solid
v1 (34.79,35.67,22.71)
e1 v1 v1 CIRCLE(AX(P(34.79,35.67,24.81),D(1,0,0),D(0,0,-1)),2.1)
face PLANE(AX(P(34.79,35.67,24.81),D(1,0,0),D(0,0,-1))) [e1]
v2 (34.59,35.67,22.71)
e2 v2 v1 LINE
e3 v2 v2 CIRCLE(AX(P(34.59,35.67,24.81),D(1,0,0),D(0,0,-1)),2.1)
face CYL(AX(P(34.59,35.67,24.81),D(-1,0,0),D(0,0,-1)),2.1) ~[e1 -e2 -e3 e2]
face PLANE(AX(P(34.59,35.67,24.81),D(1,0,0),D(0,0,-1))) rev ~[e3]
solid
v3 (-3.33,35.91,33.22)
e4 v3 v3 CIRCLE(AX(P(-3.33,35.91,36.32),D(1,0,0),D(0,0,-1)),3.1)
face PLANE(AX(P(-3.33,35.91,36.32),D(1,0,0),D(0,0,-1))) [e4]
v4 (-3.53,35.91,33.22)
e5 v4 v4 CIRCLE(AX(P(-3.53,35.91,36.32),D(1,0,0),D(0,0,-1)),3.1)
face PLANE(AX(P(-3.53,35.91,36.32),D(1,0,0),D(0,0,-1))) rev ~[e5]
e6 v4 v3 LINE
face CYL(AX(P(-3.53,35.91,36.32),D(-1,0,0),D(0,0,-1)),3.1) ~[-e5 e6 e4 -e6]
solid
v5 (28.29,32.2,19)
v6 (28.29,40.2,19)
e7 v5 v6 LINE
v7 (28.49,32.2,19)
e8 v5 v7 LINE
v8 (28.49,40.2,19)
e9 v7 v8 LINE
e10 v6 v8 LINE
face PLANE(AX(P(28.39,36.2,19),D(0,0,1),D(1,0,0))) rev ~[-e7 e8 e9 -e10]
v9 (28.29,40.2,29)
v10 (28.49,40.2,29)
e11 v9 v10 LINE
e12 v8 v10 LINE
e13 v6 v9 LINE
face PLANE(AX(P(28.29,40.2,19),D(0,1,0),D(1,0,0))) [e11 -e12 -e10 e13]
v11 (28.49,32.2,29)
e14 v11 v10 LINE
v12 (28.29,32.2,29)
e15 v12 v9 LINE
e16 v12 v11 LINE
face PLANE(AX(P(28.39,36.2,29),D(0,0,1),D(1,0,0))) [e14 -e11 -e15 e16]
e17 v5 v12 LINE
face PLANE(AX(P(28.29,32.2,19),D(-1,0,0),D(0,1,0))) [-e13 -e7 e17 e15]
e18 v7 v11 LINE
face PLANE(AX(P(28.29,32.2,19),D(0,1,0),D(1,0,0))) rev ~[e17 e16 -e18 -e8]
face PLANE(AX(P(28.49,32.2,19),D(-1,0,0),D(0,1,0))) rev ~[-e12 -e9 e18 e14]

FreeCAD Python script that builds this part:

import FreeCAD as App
import Part
import Sketcher
from FreeCAD import Vector
Q = App.Units.Quantity

doc = App.newDocument("Part")
body = doc.addObject("PartDesign::Body", "Body")

sketch1 = body.newObject("Sketcher::SketchObject", "Sketch")
sketch1.AttachmentSupport = (doc.getObject("YZ_Plane"), [""])
sketch1.MapMode = "FlatFace"
sketch1.AttachmentOffset = App.Placement(Vector(0, 0, -3.53), App.Rotation())
sketch1.addGeometry(Part.Circle(Vector(35.91, 36.32, 0), Vector(0, 0, 1), 3.1), False)
sketch1.addConstraint([
    Sketcher.Constraint("Diameter", 0, Q("6.2 mm")),
    Sketcher.Constraint("DistanceX", -1, 1, 0, 3, Q("35.91 mm")),
    Sketcher.Constraint("DistanceY", -1, 1, 0, 3, Q("36.32 mm")),
])
pad1 = body.newObject("PartDesign::Pad", "Pad")
pad1.Profile = sketch1
pad1.Length = 0.2
body2 = doc.addObject("PartDesign::Body", "Body001")

sketch2 = body2.newObject("Sketcher::SketchObject", "Sketch001")
sketch2.AttachmentSupport = (doc.getObject("XY_Plane001"), [""])
sketch2.MapMode = "FlatFace"
sketch2.AttachmentOffset = App.Placement(Vector(0, 0, 19), App.Rotation())
sketch2.addGeometry([
    Part.LineSegment(Vector(28.29, 40.2, 0), Vector(28.29, 32.2, 0)),
    Part.LineSegment(Vector(28.29, 32.2, 0), Vector(28.49, 32.2, 0)),
    Part.LineSegment(Vector(28.49, 32.2, 0), Vector(28.49, 40.2, 0)),
    Part.LineSegment(Vector(28.49, 40.2, 0), Vector(28.29, 40.2, 0)),
], False)
sketch2.addConstraint([
    Sketcher.Constraint("Coincident", 0, 2, 1, 1),
    Sketcher.Constraint("Coincident", 1, 2, 2, 1),
    Sketcher.Constraint("Coincident", 2, 2, 3, 1),
    Sketcher.Constraint("Coincident", 3, 2, 0, 1),
    Sketcher.Constraint("Vertical", 0),
    Sketcher.Constraint("Horizontal", 1),
    Sketcher.Constraint("Vertical", 2),
    Sketcher.Constraint("Horizontal", 3),
    Sketcher.Constraint("DistanceY", 0, 2, 0, 1, Q("8 mm")),
    Sketcher.Constraint("DistanceX", 1, 1, 1, 2, Q("0.2 mm")),
    Sketcher.Constraint("DistanceY", -1, 1, 0, 2, Q("32.2 mm")),
    Sketcher.Constraint("DistanceX", -1, 1, 0, 2, Q("28.29 mm")),
])
pad2 = body2.newObject("PartDesign::Pad", "Pad001")
pad2.Profile = sketch2
pad2.Length = 10
body3 = doc.addObject("PartDesign::Body", "Body002")
body3.AllowCompound = True

sketch3 = body3.newObject("Sketcher::SketchObject", "Sketch002")
sketch3.AttachmentSupport = (doc.getObject("YZ_Plane002"), [""])
sketch3.MapMode = "FlatFace"
sketch3.AttachmentOffset = App.Placement(Vector(0, 0, 34.59), App.Rotation())
sketch3.addGeometry(Part.Circle(Vector(35.67, 24.81, 0), Vector(0, 0, 1), 2.1), False)
sketch3.addConstraint([
    Sketcher.Constraint("Diameter", 0, Q("4.2 mm")),
    Sketcher.Constraint("DistanceX", -1, 1, 0, 3, Q("35.67 mm")),
    Sketcher.Constraint("DistanceY", -1, 1, 0, 3, Q("24.81 mm")),
])
pad3 = body3.newObject("PartDesign::Pad", "Pad002")
pad3.Profile = sketch3
pad3.Length = 0.2
doc.recompute()

boolean = body3.newObject("PartDesign::Boolean", "Boolean")
boolean.Type = "Fuse"
boolean.addObjects([body])
doc.recompute()

boolean2 = body3.newObject("PartDesign::Boolean", "Boolean001")
boolean2.Type = "Fuse"
boolean2.addObjects([body2])

doc.recompute()
